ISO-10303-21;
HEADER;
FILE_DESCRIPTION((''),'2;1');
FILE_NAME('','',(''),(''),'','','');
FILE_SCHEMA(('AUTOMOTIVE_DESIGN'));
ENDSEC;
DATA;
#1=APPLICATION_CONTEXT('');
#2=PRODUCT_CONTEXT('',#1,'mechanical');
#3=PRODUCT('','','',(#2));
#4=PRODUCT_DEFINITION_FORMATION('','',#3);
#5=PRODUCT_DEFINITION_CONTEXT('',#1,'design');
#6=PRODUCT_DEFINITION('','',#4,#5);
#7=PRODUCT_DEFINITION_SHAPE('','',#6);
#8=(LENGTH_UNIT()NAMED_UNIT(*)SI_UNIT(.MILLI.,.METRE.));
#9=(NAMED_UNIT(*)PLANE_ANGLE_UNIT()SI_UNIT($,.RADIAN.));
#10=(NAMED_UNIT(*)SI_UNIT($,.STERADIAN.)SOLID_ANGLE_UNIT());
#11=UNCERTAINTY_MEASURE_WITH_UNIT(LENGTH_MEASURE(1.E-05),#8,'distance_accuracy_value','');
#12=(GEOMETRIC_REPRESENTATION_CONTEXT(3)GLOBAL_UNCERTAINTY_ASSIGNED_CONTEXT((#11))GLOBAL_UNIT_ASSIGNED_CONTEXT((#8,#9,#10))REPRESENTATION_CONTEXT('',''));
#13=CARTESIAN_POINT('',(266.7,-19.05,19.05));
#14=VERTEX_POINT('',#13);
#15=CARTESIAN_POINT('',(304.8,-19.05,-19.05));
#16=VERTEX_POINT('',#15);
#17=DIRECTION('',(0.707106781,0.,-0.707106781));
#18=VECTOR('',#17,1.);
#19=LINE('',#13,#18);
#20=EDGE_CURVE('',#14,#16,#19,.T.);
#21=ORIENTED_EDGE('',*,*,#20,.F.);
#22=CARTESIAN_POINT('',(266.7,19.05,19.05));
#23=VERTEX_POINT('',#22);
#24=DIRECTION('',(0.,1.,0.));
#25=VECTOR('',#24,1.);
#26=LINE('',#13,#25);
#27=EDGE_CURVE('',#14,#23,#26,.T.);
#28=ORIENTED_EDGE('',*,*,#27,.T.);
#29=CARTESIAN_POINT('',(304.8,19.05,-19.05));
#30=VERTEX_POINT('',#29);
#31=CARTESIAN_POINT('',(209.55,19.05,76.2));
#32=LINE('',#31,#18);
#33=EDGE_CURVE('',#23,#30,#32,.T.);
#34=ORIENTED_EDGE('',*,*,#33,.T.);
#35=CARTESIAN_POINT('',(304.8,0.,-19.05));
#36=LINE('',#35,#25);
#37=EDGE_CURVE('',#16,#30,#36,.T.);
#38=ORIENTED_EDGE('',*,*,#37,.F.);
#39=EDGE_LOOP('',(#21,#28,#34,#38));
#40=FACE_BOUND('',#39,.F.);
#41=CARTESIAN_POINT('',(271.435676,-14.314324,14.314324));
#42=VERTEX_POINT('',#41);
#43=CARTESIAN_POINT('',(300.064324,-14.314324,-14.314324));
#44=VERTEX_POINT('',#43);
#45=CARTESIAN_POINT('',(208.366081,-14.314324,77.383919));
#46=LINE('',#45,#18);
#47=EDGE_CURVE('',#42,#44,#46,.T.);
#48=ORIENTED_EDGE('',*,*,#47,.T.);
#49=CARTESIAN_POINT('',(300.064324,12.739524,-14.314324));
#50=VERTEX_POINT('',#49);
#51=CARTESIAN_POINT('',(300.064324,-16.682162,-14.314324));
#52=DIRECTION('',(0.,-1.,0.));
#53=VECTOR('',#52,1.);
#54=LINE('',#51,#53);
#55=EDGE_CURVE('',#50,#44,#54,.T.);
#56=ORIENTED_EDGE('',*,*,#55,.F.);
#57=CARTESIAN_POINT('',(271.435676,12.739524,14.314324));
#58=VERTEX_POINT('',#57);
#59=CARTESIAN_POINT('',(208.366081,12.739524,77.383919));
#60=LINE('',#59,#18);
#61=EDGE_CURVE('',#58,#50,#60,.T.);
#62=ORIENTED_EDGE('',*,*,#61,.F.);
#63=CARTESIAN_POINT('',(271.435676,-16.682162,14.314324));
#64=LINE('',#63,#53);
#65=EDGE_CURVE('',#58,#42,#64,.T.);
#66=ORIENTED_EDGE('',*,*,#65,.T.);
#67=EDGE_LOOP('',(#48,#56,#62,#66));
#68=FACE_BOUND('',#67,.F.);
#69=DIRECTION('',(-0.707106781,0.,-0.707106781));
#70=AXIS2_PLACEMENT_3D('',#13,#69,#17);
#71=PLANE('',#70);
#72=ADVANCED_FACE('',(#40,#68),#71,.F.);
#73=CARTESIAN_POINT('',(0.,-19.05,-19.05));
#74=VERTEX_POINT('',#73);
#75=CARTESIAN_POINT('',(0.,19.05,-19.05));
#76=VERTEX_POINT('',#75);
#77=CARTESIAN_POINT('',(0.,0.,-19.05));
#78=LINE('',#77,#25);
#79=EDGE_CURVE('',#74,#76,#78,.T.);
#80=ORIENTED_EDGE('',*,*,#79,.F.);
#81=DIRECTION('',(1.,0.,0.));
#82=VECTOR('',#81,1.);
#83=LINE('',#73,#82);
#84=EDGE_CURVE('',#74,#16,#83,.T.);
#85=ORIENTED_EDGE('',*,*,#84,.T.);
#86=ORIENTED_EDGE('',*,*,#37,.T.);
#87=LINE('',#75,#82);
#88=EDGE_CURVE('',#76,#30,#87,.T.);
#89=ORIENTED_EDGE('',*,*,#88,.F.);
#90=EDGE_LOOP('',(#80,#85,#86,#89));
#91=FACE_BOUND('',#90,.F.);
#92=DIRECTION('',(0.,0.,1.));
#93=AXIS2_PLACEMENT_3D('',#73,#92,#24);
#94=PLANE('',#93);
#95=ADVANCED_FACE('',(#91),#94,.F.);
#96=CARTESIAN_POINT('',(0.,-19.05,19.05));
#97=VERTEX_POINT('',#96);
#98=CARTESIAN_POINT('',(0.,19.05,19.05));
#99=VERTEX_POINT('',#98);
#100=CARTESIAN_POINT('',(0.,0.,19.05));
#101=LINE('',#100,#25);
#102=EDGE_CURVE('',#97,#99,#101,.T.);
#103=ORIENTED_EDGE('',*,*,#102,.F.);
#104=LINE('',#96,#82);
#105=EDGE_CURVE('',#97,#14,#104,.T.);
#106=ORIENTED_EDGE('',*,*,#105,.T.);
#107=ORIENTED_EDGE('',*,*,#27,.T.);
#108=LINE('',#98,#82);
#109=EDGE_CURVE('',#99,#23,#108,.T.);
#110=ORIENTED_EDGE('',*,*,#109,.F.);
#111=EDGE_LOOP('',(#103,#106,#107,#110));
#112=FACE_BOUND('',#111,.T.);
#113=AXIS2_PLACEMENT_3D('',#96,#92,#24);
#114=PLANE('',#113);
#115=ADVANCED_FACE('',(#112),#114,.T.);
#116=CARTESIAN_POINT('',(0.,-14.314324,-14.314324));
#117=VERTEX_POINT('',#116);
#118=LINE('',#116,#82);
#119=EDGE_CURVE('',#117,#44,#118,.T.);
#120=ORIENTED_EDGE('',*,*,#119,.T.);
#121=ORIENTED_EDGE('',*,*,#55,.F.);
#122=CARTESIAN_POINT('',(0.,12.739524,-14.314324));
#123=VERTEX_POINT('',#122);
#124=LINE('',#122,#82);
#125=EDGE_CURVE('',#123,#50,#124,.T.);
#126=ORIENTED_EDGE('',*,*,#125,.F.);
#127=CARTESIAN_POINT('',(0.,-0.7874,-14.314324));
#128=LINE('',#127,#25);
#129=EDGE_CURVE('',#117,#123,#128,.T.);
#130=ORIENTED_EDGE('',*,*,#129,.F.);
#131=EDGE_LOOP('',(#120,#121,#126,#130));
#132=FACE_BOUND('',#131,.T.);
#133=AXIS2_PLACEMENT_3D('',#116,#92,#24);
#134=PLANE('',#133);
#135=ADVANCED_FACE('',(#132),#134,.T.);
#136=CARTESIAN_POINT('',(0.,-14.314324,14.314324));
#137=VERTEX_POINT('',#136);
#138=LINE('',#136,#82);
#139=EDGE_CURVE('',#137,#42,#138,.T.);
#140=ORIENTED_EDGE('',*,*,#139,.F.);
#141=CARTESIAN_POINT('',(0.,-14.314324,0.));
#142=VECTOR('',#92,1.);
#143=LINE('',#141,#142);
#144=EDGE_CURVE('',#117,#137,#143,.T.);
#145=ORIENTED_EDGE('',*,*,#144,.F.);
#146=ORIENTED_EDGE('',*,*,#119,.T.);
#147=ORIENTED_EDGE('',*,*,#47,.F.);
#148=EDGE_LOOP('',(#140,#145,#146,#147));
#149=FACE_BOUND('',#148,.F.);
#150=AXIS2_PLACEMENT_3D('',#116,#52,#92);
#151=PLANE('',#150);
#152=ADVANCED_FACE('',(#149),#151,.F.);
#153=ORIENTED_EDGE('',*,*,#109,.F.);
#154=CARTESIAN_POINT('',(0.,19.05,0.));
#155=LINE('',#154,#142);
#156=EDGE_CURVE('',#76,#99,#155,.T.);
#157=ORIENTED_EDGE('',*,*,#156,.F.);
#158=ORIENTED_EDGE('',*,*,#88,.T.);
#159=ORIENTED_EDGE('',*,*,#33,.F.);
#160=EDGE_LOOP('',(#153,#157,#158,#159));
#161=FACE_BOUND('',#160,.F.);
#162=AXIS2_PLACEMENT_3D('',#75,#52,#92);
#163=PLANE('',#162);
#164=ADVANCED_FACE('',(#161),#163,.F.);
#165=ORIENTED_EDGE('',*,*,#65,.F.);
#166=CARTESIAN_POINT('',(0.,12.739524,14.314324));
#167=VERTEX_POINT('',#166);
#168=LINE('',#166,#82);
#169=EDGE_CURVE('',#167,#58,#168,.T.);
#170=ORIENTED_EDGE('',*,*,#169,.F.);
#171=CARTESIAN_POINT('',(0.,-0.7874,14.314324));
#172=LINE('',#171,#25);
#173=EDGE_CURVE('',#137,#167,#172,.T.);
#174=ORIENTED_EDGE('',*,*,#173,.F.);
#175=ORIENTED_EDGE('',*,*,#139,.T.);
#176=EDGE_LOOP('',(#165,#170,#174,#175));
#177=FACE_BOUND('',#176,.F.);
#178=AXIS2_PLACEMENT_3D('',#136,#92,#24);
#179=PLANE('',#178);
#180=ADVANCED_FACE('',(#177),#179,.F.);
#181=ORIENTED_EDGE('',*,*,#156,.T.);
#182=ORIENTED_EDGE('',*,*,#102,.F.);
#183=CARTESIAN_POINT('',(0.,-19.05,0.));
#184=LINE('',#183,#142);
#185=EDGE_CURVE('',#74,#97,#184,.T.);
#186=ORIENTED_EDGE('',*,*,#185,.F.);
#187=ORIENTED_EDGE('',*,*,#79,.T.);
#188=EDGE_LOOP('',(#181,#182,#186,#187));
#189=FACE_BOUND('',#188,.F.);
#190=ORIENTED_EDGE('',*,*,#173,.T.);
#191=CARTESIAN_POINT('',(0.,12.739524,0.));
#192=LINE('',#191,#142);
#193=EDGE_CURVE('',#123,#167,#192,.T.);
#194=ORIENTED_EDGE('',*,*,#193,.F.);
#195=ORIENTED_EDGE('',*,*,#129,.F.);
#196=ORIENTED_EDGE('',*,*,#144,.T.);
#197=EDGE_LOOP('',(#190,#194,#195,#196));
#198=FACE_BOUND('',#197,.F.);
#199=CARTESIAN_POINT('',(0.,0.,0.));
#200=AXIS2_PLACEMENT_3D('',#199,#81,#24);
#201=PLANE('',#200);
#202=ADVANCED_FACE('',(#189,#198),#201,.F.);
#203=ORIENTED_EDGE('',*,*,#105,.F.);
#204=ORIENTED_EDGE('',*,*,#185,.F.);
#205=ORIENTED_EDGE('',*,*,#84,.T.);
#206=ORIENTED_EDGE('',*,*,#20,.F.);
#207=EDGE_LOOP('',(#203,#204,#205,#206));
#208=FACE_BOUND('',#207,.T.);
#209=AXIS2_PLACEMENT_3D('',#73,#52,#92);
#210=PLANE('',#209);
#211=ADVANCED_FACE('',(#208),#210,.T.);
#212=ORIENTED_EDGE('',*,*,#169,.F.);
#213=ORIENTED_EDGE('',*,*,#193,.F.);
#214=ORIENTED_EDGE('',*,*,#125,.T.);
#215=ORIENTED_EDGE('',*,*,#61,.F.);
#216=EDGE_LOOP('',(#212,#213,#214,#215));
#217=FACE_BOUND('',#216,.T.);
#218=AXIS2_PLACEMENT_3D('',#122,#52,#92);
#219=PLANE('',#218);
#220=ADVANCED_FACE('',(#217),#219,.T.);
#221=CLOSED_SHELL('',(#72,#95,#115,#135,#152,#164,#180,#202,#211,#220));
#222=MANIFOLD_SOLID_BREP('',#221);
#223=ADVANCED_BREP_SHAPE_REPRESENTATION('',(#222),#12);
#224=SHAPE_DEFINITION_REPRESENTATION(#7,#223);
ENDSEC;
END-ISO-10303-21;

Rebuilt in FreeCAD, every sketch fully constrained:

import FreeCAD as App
import Part
import Sketcher
from FreeCAD import Vector
Q = App.Units.Quantity


def add_polygon(sketch, points):
    """Adds a closed chain of lines whose ends are joined by coincident constraints."""
    first, n = sketch.GeometryCount, len(points)
    for a, b in zip(points, points[1:] + points[:1]):
        sketch.addGeometry(Part.LineSegment(App.Vector(*a, 0), App.Vector(*b, 0)), False)
    for i in range(n):
        sketch.addConstraint(Sketcher.Constraint("Coincident", first + i, 2, first + (i + 1) % n, 1))

doc = App.newDocument("Part")
body = doc.addObject("PartDesign::Body", "Body")

# Sketch on YZ plane
sketch1 = body.newObject("Sketcher::SketchObject", "Sketch")
sketch1.AttachmentSupport = (doc.getObject("YZ_Plane"), [""])
sketch1.MapMode = "FlatFace"
add_polygon(sketch1, [(-19, 19), (-19, -19), (19, -19), (19, 19)])  # lines 0-3
add_polygon(sketch1, [(13, -14), (-14, -14), (-14, 14), (13, 14)])  # lines 4-7
sketch1.addConstraint([
    Sketcher.Constraint("Vertical", 0),
    Sketcher.Constraint("Horizontal", 1),
    Sketcher.Constraint("Vertical", 2),
    Sketcher.Constraint("Horizontal", 3),
    Sketcher.Constraint("Horizontal", 4),
    Sketcher.Constraint("Vertical", 5),
    Sketcher.Constraint("Horizontal", 6),
    Sketcher.Constraint("Vertical", 7),
    Sketcher.Constraint("Symmetric", 0, 2, 2, 2, -1, 1),
    Sketcher.Constraint("Equal", 3, 0),
    Sketcher.Constraint("DistanceX", 1, 1, 1, 2, Q("1.5 in")),
    Sketcher.Constraint("DistanceX", 4, 2, 4, 1, Q("27.053848 mm")),
    Sketcher.Constraint("DistanceY", 5, 1, 5, 2, Q("28.628648 mm")),
    Sketcher.Constraint("DistanceX", 4, 2, -1, 1, Q("14.314324 mm")),
    Sketcher.Constraint("DistanceY", 4, 2, -1, 1, Q("14.314324 mm")),
])
pad1 = body.newObject("PartDesign::Pad", "Pad")
pad1.Profile = sketch1
pad1.Length = Q("12 in")

# Sketch on XZ plane
sketch2 = body.newObject("Sketcher::SketchObject", "Sketch001")
sketch2.AttachmentSupport = (doc.getObject("XZ_Plane"), [""])
sketch2.MapMode = "FlatFace"
sketch2.AttachmentOffset = App.Placement(Vector(0, 0, 0.75 * 25.4), App.Rotation())
add_polygon(sketch2, [(267, 19), (305, -19), (305, 19)])  # lines 0-2
sketch2.addConstraint([
    Sketcher.Constraint("Vertical", 1),
    Sketcher.Constraint("Horizontal", 2),
    Sketcher.Constraint("Equal", 2, 1),
    Sketcher.Constraint("DistanceX", 2, 2, 2, 1, Q("1.5 in")),
    Sketcher.Constraint("DistanceX", -1, 1, 0, 2, Q("12 in")),
    Sketcher.Constraint("DistanceY", 0, 2, -1, 1, Q("0.75 in")),
])
pocket1 = body.newObject("PartDesign::Pocket", "Pocket")
pocket1.Profile = sketch2
pocket1.Type = "ThroughAll"

doc.recompute()
